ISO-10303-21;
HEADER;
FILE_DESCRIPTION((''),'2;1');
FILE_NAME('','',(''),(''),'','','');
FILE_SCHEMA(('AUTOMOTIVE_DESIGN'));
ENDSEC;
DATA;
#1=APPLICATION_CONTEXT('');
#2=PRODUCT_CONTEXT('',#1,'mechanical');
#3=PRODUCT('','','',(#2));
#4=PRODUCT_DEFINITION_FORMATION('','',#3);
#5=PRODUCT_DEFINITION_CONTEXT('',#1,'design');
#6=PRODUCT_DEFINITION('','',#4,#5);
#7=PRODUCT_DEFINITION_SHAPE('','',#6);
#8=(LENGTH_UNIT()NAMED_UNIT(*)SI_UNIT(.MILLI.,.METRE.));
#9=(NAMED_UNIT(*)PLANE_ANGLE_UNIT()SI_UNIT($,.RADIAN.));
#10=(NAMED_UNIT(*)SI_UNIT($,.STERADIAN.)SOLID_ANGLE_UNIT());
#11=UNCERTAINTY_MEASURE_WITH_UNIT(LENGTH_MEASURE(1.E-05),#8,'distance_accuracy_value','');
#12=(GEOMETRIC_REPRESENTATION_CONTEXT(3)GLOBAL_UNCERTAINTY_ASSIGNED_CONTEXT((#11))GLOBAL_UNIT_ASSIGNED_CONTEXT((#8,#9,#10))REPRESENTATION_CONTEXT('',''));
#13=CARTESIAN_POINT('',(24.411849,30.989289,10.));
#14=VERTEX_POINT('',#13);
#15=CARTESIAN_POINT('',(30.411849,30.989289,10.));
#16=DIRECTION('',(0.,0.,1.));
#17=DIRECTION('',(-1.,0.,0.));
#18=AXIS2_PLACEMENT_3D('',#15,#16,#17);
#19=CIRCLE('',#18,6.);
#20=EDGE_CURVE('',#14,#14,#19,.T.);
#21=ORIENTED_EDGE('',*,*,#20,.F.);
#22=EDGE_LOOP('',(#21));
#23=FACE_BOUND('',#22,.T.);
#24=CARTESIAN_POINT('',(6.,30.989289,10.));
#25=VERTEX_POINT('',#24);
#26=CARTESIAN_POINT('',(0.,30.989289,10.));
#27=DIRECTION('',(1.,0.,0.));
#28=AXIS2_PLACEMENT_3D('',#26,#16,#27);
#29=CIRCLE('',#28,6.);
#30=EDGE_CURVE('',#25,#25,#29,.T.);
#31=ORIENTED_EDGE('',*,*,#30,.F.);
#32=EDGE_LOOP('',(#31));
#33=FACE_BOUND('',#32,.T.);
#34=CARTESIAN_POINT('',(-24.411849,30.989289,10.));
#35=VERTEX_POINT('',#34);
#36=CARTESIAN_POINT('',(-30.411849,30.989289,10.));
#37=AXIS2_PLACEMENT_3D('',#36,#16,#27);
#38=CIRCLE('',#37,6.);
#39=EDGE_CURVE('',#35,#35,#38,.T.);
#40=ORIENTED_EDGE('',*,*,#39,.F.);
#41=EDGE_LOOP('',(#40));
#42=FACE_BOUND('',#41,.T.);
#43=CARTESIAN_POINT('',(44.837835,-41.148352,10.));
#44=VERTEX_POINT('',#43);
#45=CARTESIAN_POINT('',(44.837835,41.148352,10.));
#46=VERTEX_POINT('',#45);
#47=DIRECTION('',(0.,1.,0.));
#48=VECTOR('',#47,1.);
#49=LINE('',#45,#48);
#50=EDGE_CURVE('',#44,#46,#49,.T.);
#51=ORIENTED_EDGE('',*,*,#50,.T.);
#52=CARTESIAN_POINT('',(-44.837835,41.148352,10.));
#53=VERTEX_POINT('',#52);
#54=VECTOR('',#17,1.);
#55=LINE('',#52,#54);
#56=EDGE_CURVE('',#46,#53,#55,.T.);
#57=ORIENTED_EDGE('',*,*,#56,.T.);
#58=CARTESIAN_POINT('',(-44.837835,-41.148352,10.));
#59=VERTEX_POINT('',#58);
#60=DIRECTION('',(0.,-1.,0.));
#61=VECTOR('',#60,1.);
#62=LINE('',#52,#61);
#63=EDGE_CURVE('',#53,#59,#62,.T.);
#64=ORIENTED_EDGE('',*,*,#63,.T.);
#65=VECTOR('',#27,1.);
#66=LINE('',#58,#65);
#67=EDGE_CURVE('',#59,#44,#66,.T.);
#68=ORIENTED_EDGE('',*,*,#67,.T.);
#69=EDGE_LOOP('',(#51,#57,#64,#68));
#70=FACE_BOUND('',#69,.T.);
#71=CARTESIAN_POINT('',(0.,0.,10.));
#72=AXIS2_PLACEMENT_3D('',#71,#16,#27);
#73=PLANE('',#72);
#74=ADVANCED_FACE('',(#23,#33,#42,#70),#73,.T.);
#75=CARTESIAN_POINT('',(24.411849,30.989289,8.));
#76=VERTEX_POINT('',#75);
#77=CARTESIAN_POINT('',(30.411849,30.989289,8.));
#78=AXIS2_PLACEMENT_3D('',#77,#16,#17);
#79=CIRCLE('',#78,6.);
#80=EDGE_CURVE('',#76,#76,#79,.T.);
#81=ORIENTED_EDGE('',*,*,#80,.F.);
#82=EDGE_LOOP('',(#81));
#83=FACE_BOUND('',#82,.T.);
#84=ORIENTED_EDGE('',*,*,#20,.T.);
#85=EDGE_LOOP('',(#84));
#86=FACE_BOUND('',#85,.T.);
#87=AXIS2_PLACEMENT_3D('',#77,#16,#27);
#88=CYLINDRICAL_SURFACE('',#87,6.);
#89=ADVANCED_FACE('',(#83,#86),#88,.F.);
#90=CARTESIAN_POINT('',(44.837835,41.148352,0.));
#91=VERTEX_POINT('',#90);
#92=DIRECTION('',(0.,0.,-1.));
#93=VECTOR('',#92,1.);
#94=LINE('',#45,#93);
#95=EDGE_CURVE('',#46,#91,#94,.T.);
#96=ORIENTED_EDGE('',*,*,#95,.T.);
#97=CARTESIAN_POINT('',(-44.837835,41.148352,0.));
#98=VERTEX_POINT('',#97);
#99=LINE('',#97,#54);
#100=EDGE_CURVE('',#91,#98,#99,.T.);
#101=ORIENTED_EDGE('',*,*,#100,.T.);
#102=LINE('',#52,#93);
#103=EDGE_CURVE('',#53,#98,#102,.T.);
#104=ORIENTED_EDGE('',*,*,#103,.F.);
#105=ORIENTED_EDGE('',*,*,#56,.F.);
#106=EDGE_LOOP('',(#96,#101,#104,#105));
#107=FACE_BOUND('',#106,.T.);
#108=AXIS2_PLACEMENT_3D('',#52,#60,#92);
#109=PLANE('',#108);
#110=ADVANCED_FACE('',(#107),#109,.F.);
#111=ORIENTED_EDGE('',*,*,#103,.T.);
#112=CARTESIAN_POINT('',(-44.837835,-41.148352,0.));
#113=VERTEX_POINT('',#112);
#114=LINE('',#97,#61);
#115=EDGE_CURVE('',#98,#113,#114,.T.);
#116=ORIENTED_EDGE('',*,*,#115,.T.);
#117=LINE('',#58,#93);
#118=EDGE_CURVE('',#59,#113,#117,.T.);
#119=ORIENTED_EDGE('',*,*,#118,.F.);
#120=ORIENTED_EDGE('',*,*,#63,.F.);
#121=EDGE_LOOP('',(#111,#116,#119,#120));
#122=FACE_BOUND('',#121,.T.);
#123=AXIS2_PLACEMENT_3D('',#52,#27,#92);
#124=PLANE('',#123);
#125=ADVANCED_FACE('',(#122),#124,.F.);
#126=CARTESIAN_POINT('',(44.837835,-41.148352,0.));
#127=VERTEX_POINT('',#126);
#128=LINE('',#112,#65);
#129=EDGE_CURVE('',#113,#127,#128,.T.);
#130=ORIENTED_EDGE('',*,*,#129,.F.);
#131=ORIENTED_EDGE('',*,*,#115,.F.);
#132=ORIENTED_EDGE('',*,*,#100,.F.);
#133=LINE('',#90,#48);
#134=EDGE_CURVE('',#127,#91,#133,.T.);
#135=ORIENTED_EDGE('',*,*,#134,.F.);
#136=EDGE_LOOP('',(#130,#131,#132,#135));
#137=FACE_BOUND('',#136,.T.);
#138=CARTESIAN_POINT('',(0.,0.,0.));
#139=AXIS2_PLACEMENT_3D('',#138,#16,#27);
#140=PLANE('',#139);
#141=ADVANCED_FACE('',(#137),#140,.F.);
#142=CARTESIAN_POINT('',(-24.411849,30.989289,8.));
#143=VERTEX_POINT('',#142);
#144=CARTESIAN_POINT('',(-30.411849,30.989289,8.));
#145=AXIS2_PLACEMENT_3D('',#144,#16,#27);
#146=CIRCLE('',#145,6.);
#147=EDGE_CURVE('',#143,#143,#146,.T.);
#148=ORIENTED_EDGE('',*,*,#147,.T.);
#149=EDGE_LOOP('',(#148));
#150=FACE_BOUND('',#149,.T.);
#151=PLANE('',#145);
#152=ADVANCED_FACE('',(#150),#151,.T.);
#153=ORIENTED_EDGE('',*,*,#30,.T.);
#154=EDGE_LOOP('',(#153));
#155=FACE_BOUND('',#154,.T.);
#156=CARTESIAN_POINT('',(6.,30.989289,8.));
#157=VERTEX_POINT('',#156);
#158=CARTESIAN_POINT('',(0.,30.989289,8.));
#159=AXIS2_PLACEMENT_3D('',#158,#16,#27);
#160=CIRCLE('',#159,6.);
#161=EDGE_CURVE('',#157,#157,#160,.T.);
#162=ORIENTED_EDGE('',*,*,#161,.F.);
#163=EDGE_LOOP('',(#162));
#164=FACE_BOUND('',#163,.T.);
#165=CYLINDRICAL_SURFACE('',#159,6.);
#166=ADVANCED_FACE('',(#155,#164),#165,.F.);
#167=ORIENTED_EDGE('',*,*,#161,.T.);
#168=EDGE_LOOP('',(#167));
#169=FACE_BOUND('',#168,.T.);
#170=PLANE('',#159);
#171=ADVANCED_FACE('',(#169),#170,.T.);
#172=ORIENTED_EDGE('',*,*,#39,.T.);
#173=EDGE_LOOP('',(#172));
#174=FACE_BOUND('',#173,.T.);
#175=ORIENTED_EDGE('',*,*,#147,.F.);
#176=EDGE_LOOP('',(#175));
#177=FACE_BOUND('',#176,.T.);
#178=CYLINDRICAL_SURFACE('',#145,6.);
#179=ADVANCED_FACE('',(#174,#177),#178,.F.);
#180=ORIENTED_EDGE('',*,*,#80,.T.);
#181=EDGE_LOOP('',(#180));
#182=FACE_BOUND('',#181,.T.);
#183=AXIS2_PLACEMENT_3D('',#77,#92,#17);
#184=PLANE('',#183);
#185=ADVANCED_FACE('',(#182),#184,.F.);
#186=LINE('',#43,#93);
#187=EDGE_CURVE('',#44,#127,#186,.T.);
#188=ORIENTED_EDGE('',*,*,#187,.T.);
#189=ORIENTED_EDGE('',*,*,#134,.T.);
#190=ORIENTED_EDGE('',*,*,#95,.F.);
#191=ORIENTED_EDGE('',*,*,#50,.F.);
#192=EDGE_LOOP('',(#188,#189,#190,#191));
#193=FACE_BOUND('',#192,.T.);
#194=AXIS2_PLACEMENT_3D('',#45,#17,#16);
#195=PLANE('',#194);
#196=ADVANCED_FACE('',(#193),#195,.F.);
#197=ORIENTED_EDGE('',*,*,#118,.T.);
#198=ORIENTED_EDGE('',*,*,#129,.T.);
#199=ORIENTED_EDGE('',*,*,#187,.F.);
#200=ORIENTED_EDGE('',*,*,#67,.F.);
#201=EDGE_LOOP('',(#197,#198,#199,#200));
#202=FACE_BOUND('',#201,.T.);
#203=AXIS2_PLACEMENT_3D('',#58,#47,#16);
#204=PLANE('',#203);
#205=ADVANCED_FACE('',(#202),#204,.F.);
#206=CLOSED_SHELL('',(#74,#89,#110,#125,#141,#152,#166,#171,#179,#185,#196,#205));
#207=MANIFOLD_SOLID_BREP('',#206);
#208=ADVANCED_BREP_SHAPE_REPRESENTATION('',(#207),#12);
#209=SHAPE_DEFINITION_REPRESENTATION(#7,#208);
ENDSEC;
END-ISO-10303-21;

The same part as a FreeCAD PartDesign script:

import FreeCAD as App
import Part
import Sketcher
Q = App.Units.Quantity


def add_polygon(sketch, points):
    """Adds a closed chain of lines whose ends are joined by coincident constraints."""
    first, n = sketch.GeometryCount, len(points)
    for a, b in zip(points, points[1:] + points[:1]):
        sketch.addGeometry(Part.LineSegment(App.Vector(*a, 0), App.Vector(*b, 0)), False)
    for i in range(n):
        sketch.addConstraint(Sketcher.Constraint("Coincident", first + i, 2, first + (i + 1) % n, 1))

doc = App.newDocument("Part")
params = doc.addObject("Spreadsheet::Sheet", "Params")
for row, (alias, value) in enumerate([
    ("pad1_length", "10 mm"),
    ("sketch2_diameter", "12 mm"),
    ("pocket1_length", "2 mm"),
    ("sketch3_diameter", "12 mm"),
    ("pocket2_length", "2 mm"),
], start=1):
    params.set(f"A{row}", alias)
    params.set(f"B{row}", "=" + value)
    params.setAlias(f"B{row}", alias)

body = doc.addObject("PartDesign::Body", "Body")

sketch1 = body.newObject("Sketcher::SketchObject", "Sketch")
sketch1.AttachmentSupport = (doc.getObject("XY_Plane"), [""])
sketch1.MapMode = "FlatFace"
add_polygon(sketch1, [(-44.837835, 41.148352), (-44.837835, -41.148352), (44.837835, -41.148352), (44.837835, 41.148352)])
sketch1.addConstraint([
    Sketcher.Constraint("Vertical", 0),
    Sketcher.Constraint("Horizontal", 1),
    Sketcher.Constraint("Vertical", 2),
    Sketcher.Constraint("Horizontal", 3),
    Sketcher.Constraint("Symmetric", 0, 2, 2, 2, -1, 1),
    Sketcher.Constraint("DistanceX", 1, 1, 1, 2, Q("89.67567 mm")),
    Sketcher.Constraint("DistanceY", 0, 2, 0, 1, Q("82.296703 mm")),
])
pad1 = body.newObject("PartDesign::Pad", "Pad")
pad1.Profile = sketch1
pad1.setExpression("Length", "Params.pad1_length")

sketch2 = body.newObject("Sketcher::SketchObject", "Sketch001")
sketch2.AttachmentSupport = (doc.getObject("XY_Plane"), [""])
sketch2.MapMode = "FlatFace"
sketch2.AttachmentOffset = App.Placement(App.Vector(0, 0, 10), App.Rotation())
sketch2.addGeometry([
    Part.Circle(App.Vector(-30.411849, 30.989289, 0), App.Vector(0, 0, 1), 6),
    Part.Circle(App.Vector(30.411849, 30.989289, 0), App.Vector(0, 0, 1), 6),
], False)
sketch2.addConstraint([
    Sketcher.Constraint("Equal", 0, 1),
    Sketcher.Constraint("Symmetric", 0, 3, 1, 3, -2),
    Sketcher.Constraint("Diameter", 0, Q("12 mm")),
    Sketcher.Constraint("DistanceX", 0, 3, -1, 1, Q("30.411849 mm")),
    Sketcher.Constraint("DistanceY", -1, 1, 0, 3, Q("30.989289 mm")),
])
sketch2.setExpression("Constraints[2]", "Params.sketch2_diameter")
pocket1 = body.newObject("PartDesign::Pocket", "Pocket")
pocket1.Profile = sketch2
pocket1.setExpression("Length", "Params.pocket1_length")

sketch3 = body.newObject("Sketcher::SketchObject", "Sketch002")
sketch3.AttachmentSupport = (doc.getObject("XY_Plane"), [""])
sketch3.MapMode = "FlatFace"
sketch3.AttachmentOffset = App.Placement(App.Vector(0, 0, 10), App.Rotation())
sketch3.addGeometry(Part.Circle(App.Vector(0, 30.989289, 0), App.Vector(0, 0, 1), 6), False)
sketch3.addConstraint([
    Sketcher.Constraint("PointOnObject", 0, 3, -2),
    Sketcher.Constraint("Diameter", 0, Q("12 mm")),
    Sketcher.Constraint("DistanceY", -1, 1, 0, 3, Q("30.989289 mm")),
])
sketch3.setExpression("Constraints[1]", "Params.sketch3_diameter")
pocket2 = body.newObject("PartDesign::Pocket", "Pocket001")
pocket2.Profile = sketch3
pocket2.setExpression("Length", "Params.pocket2_length")

doc.recompute()
